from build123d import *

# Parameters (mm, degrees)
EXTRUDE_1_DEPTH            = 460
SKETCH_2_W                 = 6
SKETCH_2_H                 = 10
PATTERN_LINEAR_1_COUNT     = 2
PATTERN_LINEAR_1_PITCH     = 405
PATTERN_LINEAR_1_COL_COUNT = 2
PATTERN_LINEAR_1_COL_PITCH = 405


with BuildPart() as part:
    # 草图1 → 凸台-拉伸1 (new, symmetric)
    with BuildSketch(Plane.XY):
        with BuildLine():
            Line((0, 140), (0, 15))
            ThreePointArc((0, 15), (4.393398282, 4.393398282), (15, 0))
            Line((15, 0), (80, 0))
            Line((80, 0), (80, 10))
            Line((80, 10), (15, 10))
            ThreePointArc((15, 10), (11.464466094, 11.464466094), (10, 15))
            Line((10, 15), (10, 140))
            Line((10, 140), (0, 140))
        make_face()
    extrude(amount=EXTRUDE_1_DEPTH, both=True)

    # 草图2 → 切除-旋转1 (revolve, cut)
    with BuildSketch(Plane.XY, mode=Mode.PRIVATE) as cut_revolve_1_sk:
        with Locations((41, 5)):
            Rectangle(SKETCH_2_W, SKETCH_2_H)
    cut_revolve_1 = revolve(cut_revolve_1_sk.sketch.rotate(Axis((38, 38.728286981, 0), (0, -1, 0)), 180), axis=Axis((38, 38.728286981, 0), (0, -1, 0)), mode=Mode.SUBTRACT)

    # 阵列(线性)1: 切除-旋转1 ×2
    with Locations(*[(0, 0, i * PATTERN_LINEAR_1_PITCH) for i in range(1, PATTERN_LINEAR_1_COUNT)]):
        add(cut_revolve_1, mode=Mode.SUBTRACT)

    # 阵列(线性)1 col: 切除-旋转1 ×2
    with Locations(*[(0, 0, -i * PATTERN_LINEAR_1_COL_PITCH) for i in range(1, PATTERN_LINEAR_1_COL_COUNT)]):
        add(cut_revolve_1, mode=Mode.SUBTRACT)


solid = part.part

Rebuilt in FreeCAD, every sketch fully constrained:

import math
import FreeCAD as App
import Part
import Sketcher
from FreeCAD import Vector

doc = App.newDocument("Part")
body = doc.addObject("PartDesign::Body", "Body")

# Sketch on XY plane
sketch1 = body.newObject("Sketcher::SketchObject", "Sketch")
sketch1.AttachmentSupport = (doc.getObject("XY_Plane"), [""])
sketch1.MapMode = "FlatFace"
sketch1.addGeometry([
    Part.LineSegment(Vector(0, 140, 0), Vector(0, 15, 0)),  # 0
    Part.ArcOfCircle(Part.Circle(Vector(15, 15, 0), Vector(0, 0, 1), 15), math.radians(180), math.radians(270)),  # 1
    Part.LineSegment(Vector(15, 0, 0), Vector(80, 0, 0)),  # 2
    Part.LineSegment(Vector(80, 0, 0), Vector(80, 10, 0)),  # 3
    Part.LineSegment(Vector(80, 10, 0), Vector(15, 10, 0)),  # 4
    Part.ArcOfCircle(Part.Circle(Vector(15, 15, 0), Vector(0, 0, 1), 5), math.radians(180), math.radians(270)),  # 5
    Part.LineSegment(Vector(10, 15, 0), Vector(10, 140, 0)),  # 6
    Part.LineSegment(Vector(10, 140, 0), Vector(0, 140, 0)),  # 7
], False)
sketch1.addConstraint([
    Sketcher.Constraint("Tangent", 0, 2, 1, 1),
    Sketcher.Constraint("Tangent", 1, 2, 2, 1),
    Sketcher.Constraint("Coincident", 2, 2, 3, 1),
    Sketcher.Constraint("Coincident", 3, 2, 4, 1),
    Sketcher.Constraint("Tangent", 4, 2, 5, 2),
    Sketcher.Constraint("Tangent", 5, 1, 6, 1),
    Sketcher.Constraint("Coincident", 6, 2, 7, 1),
    Sketcher.Constraint("Coincident", 7, 2, 0, 1),
    Sketcher.Constraint("Vertical", 0),
    Sketcher.Constraint("Horizontal", 2),
    Sketcher.Constraint("Vertical", 3),
    Sketcher.Constraint("Horizontal", 4),
    Sketcher.Constraint("Vertical", 6),
    Sketcher.Constraint("Horizontal", 7),
    Sketcher.Constraint("Coincident", 5, 3, 1, 3),
    Sketcher.Constraint("PointOnObject", 0, 2, -2),
    Sketcher.Constraint("PointOnObject", 1, 2, -1),
    Sketcher.Constraint("Radius", 1, 15.0),
    Sketcher.Constraint("Radius", 5, 5.0),
    Sketcher.Constraint("DistanceX", 2, 1, 2, 2, 65.0),
    Sketcher.Constraint("DistanceY", 0, 2, 0, 1, 125.0),
])
pad1 = body.newObject("PartDesign::Pad", "Pad")
pad1.Profile = sketch1
pad1.Length = 920
pad1.Midplane = True

# Sketch on XY plane
sketch2 = body.newObject("Sketcher::SketchObject", "Sketch001")
sketch2.AttachmentSupport = (doc.getObject("XY_Plane"), [""])
sketch2.MapMode = "FlatFace"
sketch2.addGeometry([
    Part.LineSegment(Vector(38, 10, 0), Vector(38, 0, 0)),
    Part.LineSegment(Vector(38, 0, 0), Vector(44, 0, 0)),
    Part.LineSegment(Vector(44, 0, 0), Vector(44, 10, 0)),
    Part.LineSegment(Vector(44, 10, 0), Vector(38, 10, 0)),
], False)
sketch2.addGeometry(Part.LineSegment(Vector(38, 10, 0), Vector(38, 0, 0)), True)  # axis
sketch2.addConstraint([
    Sketcher.Constraint("Coincident", 0, 2, 1, 1),
    Sketcher.Constraint("Coincident", 1, 2, 2, 1),
    Sketcher.Constraint("Coincident", 2, 2, 3, 1),
    Sketcher.Constraint("Coincident", 3, 2, 0, 1),
    Sketcher.Constraint("Vertical", 0),
    Sketcher.Constraint("Horizontal", 1),
    Sketcher.Constraint("Vertical", 2),
    Sketcher.Constraint("Horizontal", 3),
    Sketcher.Constraint("Vertical", 4),
    Sketcher.Constraint("Coincident", 4, 1, 3, 2),
    Sketcher.Constraint("PointOnObject", 0, 2, -1),
    Sketcher.Constraint("PointOnObject", 4, 2, -1),
    Sketcher.Constraint("DistanceX", 1, 1, 1, 2, 6.0),
    Sketcher.Constraint("DistanceY", 0, 2, 0, 1, 10.0),
    Sketcher.Constraint("DistanceX", -1, 1, 0, 2, 38.0),
])
groove = body.newObject("PartDesign::Groove", "Groove")
groove.Profile = sketch2
groove.ReferenceAxis = (sketch2, ["Axis0"])
groove.Angle = 360
doc.recompute()

linearpattern = body.newObject("PartDesign::LinearPattern", "LinearPattern")
linearpattern.Originals = [groove]
linearpattern.Direction = (doc.getObject("Z_Axis"), [""])
linearpattern.Mode = "offset"
linearpattern.Offset = 405
linearpattern.Occurrences = 2
body.Tip = linearpattern
doc.recompute()

linearpattern2 = body.newObject("PartDesign::LinearPattern", "LinearPattern001")
linearpattern2.Originals = [groove]
linearpattern2.Direction = (doc.getObject("Z_Axis"), [""])
linearpattern2.Mode = "offset"
linearpattern2.Offset = 405
linearpattern2.Occurrences = 2
linearpattern2.Reversed = True
body.Tip = linearpattern2

doc.recompute()
